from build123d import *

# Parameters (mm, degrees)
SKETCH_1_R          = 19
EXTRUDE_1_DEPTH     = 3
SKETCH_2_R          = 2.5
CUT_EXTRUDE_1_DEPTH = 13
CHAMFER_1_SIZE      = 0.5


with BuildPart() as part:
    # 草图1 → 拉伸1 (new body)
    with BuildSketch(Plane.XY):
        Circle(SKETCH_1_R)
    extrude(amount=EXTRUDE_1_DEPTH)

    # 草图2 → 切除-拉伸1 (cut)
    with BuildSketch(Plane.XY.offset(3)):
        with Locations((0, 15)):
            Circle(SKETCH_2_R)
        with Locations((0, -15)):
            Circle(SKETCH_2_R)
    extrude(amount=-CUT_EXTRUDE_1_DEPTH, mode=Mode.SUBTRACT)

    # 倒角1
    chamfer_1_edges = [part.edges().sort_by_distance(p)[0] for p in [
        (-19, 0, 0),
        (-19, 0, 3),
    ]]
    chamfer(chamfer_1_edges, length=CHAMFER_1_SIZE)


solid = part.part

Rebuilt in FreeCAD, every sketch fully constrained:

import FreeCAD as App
import Part
import Sketcher

V = App.Vector


def edges_at(feature, points):
    """Names of the edges that pass closest to the given points."""
    edges = feature.Shape.Edges
    near = lambda p: min(range(len(edges)), key=lambda i: edges[i].distToShape(Part.Vertex(*p))[0])
    return sorted({f"Edge{near(p) + 1}" for p in points})

doc = App.newDocument("Part")
body = doc.addObject("PartDesign::Body", "Body")

# Sketch on XY plane
sketch1 = doc.addObject("Sketcher::SketchObject", "Sketch")
body.addObject(sketch1)
sketch1.AttachmentSupport = (doc.XY_Plane, [""])
sketch1.MapMode = "FlatFace"
sketch1.addGeometry(Part.Circle(V(0, 0, 0), V(0, 0, 1), 19), False)
sketch1.addConstraint(Sketcher.Constraint("Coincident", 0, 3, -1, 1))
sketch1.addConstraint(Sketcher.Constraint("Diameter", 0, 38.0))
pad1 = doc.addObject("PartDesign::Pad", "Pad")
body.addObject(pad1)
pad1.Profile = sketch1
pad1.Length = 3

# Sketch on XY plane
sketch2 = doc.addObject("Sketcher::SketchObject", "Sketch001")
body.addObject(sketch2)
sketch2.AttachmentSupport = (doc.XY_Plane, [""])
sketch2.MapMode = "FlatFace"
sketch2.AttachmentOffset = App.Placement(V(0, 0, 3), App.Rotation())
sketch2.addGeometry(Part.Circle(V(0, 15, 0), V(0, 0, 1), 2.5), False)
sketch2.addGeometry(Part.Circle(V(0, -15, 0), V(0, 0, 1), 2.5), False)
sketch2.addConstraint(Sketcher.Constraint("Equal", 0, 1))
sketch2.addConstraint(Sketcher.Constraint("Symmetric", 0, 3, 1, 3, -1, 1))
sketch2.addConstraint(Sketcher.Constraint("PointOnObject", 0, 3, -2))
sketch2.addConstraint(Sketcher.Constraint("Diameter", 0, 5.0))
sketch2.addConstraint(Sketcher.Constraint("DistanceY", -1, 1, 0, 3, 15.0))
pocket1 = doc.addObject("PartDesign::Pocket", "Pocket")
body.addObject(pocket1)
pocket1.Profile = sketch2
pocket1.Length = 13
doc.recompute()

chamfer = doc.addObject("PartDesign::Chamfer", "Chamfer")
body.addObject(chamfer)
chamfer.Base = (pocket1, edges_at(pocket1, [(-19, 0, 0), (-19, 0, 3)]))
chamfer.Size = 0.5

doc.recompute()
